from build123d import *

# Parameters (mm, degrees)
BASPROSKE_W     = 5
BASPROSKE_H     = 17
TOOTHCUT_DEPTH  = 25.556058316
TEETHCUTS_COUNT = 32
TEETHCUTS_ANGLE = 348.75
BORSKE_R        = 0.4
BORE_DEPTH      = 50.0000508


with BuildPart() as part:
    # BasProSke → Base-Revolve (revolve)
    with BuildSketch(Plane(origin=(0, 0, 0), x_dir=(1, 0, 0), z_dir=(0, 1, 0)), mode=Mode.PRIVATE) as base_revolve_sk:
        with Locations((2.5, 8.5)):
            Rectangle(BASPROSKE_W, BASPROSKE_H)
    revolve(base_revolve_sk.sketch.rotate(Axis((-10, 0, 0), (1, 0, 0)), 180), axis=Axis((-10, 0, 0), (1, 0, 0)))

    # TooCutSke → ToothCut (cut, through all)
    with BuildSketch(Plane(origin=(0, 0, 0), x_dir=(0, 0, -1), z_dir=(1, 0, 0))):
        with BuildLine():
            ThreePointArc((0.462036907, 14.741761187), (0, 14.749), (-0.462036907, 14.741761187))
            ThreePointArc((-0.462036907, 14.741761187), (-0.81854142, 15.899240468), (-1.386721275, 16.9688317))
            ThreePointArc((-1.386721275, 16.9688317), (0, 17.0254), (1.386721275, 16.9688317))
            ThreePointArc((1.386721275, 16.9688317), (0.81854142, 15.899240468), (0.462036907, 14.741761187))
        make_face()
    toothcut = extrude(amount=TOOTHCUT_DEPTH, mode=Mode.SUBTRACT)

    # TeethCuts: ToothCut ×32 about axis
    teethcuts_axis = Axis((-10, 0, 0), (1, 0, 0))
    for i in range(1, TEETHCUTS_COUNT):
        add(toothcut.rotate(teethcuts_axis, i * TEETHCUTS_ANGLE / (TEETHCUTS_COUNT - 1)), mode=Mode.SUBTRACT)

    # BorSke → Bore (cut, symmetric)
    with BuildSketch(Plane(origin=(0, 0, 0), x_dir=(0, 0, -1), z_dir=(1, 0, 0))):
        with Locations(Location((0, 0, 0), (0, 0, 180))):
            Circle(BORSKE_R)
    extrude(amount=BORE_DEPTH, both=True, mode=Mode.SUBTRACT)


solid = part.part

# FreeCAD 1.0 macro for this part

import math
import FreeCAD as App
import Part
import Sketcher

V = App.Vector


def add_polygon(sketch, points):
    """Adds a closed chain of lines whose ends are joined by coincident constraints."""
    first, n = sketch.GeometryCount, len(points)
    for a, b in zip(points, points[1:] + points[:1]):
        sketch.addGeometry(Part.LineSegment(App.Vector(*a, 0), App.Vector(*b, 0)), False)
    for i in range(n):
        sketch.addConstraint(Sketcher.Constraint("Coincident", first + i, 2, first + (i + 1) % n, 1))

doc = App.newDocument("Part")
params = doc.addObject("Spreadsheet::Sheet", "Params")
for row, (alias, value) in enumerate([
    ("sketch1_width", "5 mm"),
    ("sketch1_height", "17 mm"),
    ("revolution_angle", "360 deg"),
    ("sketch2_radius", "6.4 mm"),
    ("sketch3_diameter", "0.8 mm"),
    ("pocket2_length", "100.000102 mm"),
], start=1):
    params.set(f"A{row}", alias)
    params.set(f"B{row}", "=" + value)
    params.setAlias(f"B{row}", alias)

body = doc.addObject("PartDesign::Body", "Body")

# Sketch on XZ plane
sketch1 = body.newObject("Sketcher::SketchObject", "Sketch")
sketch1.AttachmentSupport = (doc.getObject("XZ_Plane"), [""])
sketch1.MapMode = "FlatFace"
add_polygon(sketch1, [(0, -17), (0, 0), (5, 0), (5, -17)])  # lines 0-3
sketch1.addConstraint([
    Sketcher.Constraint("Vertical", 0),
    Sketcher.Constraint("Horizontal", 1),
    Sketcher.Constraint("Vertical", 2),
    Sketcher.Constraint("Horizontal", 3),
    Sketcher.Constraint("Coincident", 0, 2, -1, 1),
    Sketcher.Constraint("DistanceX", 1, 1, 1, 2, 5.0),
    Sketcher.Constraint("DistanceY", 0, 1, 0, 2, 17.0),
])
sketch1.setExpression("Constraints[9]", "Params.sketch1_width")
sketch1.setExpression("Constraints[10]", "Params.sketch1_height")
revolution = body.newObject("PartDesign::Revolution", "Revolution")
revolution.Profile = sketch1
revolution.ReferenceAxis = (sketch1, ["H_Axis"])
revolution.setExpression("Angle", "Params.revolution_angle")

# Sketch on YZ plane
sketch2 = body.newObject("Sketcher::SketchObject", "Sketch001")
sketch2.AttachmentSupport = (doc.getObject("YZ_Plane"), [""])
sketch2.MapMode = "FlatFace"
sketch2.addGeometry([
    Part.ArcOfCircle(Part.Circle(V(0, 0, 0), V(0, 0, 1), 14.749), math.radians(-1.795179), math.radians(1.795179)),
    Part.ArcOfCircle(Part.Circle(V(13.44508, -6.729303, 0), V(0, 0, 1), 6.4), math.radians(56.592762), math.radians(78.310582)),
    Part.ArcOfCircle(Part.Circle(V(0, 0, 0), V(0, 0, 1), 17.0254), math.radians(-4.671925), math.radians(4.671925)),
    Part.ArcOfCircle(Part.Circle(V(13.44508, 6.729303, 0), V(0, 0, 1), 6.4), math.radians(-78.310582), math.radians(-56.592762)),
], False)
sketch2.addConstraint([
    Sketcher.Constraint("Coincident", 0, 1, 1, 2),
    Sketcher.Constraint("Coincident", 1, 1, 2, 1),
    Sketcher.Constraint("Coincident", 2, 2, 3, 2),
    Sketcher.Constraint("Coincident", 3, 1, 0, 2),
    Sketcher.Constraint("Coincident", 0, 3, -1, 1),
    Sketcher.Constraint("Coincident", 2, 3, -1, 1),
    Sketcher.Constraint("Equal", 1, 3),
    Sketcher.Constraint("Symmetric", 1, 3, 3, 3, -1),
    Sketcher.Constraint("Radius", 1, 6.4),
    Sketcher.Constraint("Radius", 0, 14.749),
    Sketcher.Constraint("Radius", 2, 17.0254),
    Sketcher.Constraint("DistanceX", -1, 1, 1, 3, 13.44508),
    Sketcher.Constraint("DistanceX", -1, 1, 0, 1, 14.741761),
])
sketch2.setExpression("Constraints[8]", "Params.sketch2_radius")
pocket1 = body.newObject("PartDesign::Pocket", "Pocket")
pocket1.Profile = sketch2
pocket1.Type = "ThroughAll"
pocket1.Reversed = True
doc.recompute()

polarpattern = body.newObject("PartDesign::PolarPattern", "PolarPattern")
polarpattern.Originals = [pocket1]
polarpattern.Axis = (doc.getObject("X_Axis"), [""])
polarpattern.Angle = 360
polarpattern.Occurrences = 32
body.Tip = polarpattern

# Sketch on YZ plane
sketch3 = body.newObject("Sketcher::SketchObject", "Sketch002")
sketch3.AttachmentSupport = (doc.getObject("YZ_Plane"), [""])
sketch3.MapMode = "FlatFace"
sketch3.addGeometry(Part.Circle(V(0, 0, 0), V(0, 0, 1), 0.4), False)
sketch3.addConstraint([
    Sketcher.Constraint("Coincident", 0, 3, -1, 1),
    Sketcher.Constraint("Diameter", 0, 0.8),
])
sketch3.setExpression("Constraints[1]", "Params.sketch3_diameter")
pocket2 = body.newObject("PartDesign::Pocket", "Pocket001")
pocket2.Profile = sketch3
pocket2.setExpression("Length", "Params.pocket2_length")
pocket2.Midplane = True

doc.recompute()
